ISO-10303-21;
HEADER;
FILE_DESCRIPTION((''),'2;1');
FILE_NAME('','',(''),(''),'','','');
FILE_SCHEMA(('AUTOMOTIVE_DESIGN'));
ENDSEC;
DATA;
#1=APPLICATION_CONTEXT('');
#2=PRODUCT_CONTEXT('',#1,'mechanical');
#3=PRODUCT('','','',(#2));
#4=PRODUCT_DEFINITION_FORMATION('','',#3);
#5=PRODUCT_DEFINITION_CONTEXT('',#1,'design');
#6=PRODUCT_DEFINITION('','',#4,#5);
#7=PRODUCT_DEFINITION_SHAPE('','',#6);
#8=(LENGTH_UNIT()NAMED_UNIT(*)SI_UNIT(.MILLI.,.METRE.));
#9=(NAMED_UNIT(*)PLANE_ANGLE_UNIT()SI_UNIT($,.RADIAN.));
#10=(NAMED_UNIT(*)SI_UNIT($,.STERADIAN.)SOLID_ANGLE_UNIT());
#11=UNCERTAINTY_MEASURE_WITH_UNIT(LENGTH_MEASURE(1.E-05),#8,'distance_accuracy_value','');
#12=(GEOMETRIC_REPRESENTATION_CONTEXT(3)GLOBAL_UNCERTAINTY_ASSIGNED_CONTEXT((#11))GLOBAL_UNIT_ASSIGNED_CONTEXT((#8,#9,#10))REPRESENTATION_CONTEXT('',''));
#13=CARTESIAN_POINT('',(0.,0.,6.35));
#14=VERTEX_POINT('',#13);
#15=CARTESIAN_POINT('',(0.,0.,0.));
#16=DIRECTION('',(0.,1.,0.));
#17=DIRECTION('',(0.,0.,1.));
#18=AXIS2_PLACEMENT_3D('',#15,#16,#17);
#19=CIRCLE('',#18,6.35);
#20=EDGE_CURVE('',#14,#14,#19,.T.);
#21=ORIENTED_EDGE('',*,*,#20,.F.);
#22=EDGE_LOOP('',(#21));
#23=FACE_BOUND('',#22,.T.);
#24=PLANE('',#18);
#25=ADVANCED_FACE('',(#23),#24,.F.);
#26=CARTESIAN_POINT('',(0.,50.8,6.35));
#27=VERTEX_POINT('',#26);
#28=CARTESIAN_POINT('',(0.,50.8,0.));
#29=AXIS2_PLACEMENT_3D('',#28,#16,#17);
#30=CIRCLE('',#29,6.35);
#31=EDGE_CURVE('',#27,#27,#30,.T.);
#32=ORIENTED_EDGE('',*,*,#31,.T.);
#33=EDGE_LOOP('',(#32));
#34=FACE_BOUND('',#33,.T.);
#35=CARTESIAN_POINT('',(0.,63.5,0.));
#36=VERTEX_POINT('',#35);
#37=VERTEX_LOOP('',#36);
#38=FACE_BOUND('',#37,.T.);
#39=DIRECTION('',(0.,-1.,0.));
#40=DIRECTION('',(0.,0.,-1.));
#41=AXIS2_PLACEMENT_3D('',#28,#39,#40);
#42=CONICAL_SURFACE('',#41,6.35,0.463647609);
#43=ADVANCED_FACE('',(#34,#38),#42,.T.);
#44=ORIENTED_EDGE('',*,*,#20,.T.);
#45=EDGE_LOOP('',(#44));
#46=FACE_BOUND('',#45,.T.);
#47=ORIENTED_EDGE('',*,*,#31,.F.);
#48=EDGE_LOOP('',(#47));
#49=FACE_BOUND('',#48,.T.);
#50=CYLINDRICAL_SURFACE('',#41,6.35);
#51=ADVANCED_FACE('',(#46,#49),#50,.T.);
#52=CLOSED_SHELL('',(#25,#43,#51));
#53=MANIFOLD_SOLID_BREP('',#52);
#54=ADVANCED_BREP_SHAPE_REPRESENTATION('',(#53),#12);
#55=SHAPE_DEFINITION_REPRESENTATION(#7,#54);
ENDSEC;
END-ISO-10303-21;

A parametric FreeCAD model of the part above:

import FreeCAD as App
import Part
import Sketcher

V = App.Vector
Q = App.Units.Quantity

doc = App.newDocument("Part")
params = doc.addObject("Spreadsheet::Sheet", "Params")
for row, (alias, value) in enumerate([
    ("sketch1_diameter", "0.5 in"),
    ("pad1_length", "2 in"),
    ("sketch2_height", "0.5 in"),
    ("sketch2_width", "0.25 in"),
    ("revolution_angle", "360 deg"),
], start=1):
    params.set(f"A{row}", alias)
    params.set(f"B{row}", "=" + value)
    params.setAlias(f"B{row}", alias)

body = doc.addObject("PartDesign::Body", "Body")

sketch1 = doc.addObject("Sketcher::SketchObject", "Sketch")
body.addObject(sketch1)
sketch1.AttachmentSupport = (doc.XZ_Plane, [""])
sketch1.MapMode = "FlatFace"
sketch1.addGeometry(Part.Circle(V(0, 0, 0), V(0, 0, 1), 6), False)
sketch1.addConstraint([
    Sketcher.Constraint("Coincident", 0, 3, -1, 1),
    Sketcher.Constraint("Diameter", 0, Q("0.5 in")),
])
sketch1.setExpression("Constraints[1]", "Params.sketch1_diameter")
pad1 = doc.addObject("PartDesign::Pad", "Pad")
body.addObject(pad1)
pad1.Profile = sketch1
pad1.setExpression("Length", "Params.pad1_length")
pad1.Reversed = True

sketch2 = doc.addObject("Sketcher::SketchObject", "Sketch001")
body.addObject(sketch2)
sketch2.AttachmentSupport = (doc.XY_Plane, [""])
sketch2.MapMode = "FlatFace"
sketch2.addGeometry([
    Part.LineSegment(V(0, 64, 0), V(0, 51, 0)),
    Part.LineSegment(V(0, 51, 0), V(6, 51, 0)),
    Part.LineSegment(V(6, 51, 0), V(0, 64, 0)),
], False)
sketch2.addConstraint([
    Sketcher.Constraint("Coincident", 0, 2, 1, 1),
    Sketcher.Constraint("Coincident", 1, 2, 2, 1),
    Sketcher.Constraint("Coincident", 2, 2, 0, 1),
    Sketcher.Constraint("Vertical", 0),
    Sketcher.Constraint("Horizontal", 1),
    Sketcher.Constraint("PointOnObject", 0, 2, -2),
    Sketcher.Constraint("DistanceY", 0, 2, 0, 1, Q("0.5 in")),
    Sketcher.Constraint("DistanceY", -1, 1, 0, 2, Q("2 in")),
    Sketcher.Constraint("DistanceX", 1, 1, 1, 2, Q("0.25 in")),
])
sketch2.setExpression("Constraints[6]", "Params.sketch2_height")
sketch2.setExpression("Constraints[8]", "Params.sketch2_width")
revolution = doc.addObject("PartDesign::Revolution", "Revolution")
body.addObject(revolution)
revolution.Profile = sketch2
revolution.ReferenceAxis = (sketch2, ["V_Axis"])
revolution.setExpression("Angle", "Params.revolution_angle")

doc.recompute()
